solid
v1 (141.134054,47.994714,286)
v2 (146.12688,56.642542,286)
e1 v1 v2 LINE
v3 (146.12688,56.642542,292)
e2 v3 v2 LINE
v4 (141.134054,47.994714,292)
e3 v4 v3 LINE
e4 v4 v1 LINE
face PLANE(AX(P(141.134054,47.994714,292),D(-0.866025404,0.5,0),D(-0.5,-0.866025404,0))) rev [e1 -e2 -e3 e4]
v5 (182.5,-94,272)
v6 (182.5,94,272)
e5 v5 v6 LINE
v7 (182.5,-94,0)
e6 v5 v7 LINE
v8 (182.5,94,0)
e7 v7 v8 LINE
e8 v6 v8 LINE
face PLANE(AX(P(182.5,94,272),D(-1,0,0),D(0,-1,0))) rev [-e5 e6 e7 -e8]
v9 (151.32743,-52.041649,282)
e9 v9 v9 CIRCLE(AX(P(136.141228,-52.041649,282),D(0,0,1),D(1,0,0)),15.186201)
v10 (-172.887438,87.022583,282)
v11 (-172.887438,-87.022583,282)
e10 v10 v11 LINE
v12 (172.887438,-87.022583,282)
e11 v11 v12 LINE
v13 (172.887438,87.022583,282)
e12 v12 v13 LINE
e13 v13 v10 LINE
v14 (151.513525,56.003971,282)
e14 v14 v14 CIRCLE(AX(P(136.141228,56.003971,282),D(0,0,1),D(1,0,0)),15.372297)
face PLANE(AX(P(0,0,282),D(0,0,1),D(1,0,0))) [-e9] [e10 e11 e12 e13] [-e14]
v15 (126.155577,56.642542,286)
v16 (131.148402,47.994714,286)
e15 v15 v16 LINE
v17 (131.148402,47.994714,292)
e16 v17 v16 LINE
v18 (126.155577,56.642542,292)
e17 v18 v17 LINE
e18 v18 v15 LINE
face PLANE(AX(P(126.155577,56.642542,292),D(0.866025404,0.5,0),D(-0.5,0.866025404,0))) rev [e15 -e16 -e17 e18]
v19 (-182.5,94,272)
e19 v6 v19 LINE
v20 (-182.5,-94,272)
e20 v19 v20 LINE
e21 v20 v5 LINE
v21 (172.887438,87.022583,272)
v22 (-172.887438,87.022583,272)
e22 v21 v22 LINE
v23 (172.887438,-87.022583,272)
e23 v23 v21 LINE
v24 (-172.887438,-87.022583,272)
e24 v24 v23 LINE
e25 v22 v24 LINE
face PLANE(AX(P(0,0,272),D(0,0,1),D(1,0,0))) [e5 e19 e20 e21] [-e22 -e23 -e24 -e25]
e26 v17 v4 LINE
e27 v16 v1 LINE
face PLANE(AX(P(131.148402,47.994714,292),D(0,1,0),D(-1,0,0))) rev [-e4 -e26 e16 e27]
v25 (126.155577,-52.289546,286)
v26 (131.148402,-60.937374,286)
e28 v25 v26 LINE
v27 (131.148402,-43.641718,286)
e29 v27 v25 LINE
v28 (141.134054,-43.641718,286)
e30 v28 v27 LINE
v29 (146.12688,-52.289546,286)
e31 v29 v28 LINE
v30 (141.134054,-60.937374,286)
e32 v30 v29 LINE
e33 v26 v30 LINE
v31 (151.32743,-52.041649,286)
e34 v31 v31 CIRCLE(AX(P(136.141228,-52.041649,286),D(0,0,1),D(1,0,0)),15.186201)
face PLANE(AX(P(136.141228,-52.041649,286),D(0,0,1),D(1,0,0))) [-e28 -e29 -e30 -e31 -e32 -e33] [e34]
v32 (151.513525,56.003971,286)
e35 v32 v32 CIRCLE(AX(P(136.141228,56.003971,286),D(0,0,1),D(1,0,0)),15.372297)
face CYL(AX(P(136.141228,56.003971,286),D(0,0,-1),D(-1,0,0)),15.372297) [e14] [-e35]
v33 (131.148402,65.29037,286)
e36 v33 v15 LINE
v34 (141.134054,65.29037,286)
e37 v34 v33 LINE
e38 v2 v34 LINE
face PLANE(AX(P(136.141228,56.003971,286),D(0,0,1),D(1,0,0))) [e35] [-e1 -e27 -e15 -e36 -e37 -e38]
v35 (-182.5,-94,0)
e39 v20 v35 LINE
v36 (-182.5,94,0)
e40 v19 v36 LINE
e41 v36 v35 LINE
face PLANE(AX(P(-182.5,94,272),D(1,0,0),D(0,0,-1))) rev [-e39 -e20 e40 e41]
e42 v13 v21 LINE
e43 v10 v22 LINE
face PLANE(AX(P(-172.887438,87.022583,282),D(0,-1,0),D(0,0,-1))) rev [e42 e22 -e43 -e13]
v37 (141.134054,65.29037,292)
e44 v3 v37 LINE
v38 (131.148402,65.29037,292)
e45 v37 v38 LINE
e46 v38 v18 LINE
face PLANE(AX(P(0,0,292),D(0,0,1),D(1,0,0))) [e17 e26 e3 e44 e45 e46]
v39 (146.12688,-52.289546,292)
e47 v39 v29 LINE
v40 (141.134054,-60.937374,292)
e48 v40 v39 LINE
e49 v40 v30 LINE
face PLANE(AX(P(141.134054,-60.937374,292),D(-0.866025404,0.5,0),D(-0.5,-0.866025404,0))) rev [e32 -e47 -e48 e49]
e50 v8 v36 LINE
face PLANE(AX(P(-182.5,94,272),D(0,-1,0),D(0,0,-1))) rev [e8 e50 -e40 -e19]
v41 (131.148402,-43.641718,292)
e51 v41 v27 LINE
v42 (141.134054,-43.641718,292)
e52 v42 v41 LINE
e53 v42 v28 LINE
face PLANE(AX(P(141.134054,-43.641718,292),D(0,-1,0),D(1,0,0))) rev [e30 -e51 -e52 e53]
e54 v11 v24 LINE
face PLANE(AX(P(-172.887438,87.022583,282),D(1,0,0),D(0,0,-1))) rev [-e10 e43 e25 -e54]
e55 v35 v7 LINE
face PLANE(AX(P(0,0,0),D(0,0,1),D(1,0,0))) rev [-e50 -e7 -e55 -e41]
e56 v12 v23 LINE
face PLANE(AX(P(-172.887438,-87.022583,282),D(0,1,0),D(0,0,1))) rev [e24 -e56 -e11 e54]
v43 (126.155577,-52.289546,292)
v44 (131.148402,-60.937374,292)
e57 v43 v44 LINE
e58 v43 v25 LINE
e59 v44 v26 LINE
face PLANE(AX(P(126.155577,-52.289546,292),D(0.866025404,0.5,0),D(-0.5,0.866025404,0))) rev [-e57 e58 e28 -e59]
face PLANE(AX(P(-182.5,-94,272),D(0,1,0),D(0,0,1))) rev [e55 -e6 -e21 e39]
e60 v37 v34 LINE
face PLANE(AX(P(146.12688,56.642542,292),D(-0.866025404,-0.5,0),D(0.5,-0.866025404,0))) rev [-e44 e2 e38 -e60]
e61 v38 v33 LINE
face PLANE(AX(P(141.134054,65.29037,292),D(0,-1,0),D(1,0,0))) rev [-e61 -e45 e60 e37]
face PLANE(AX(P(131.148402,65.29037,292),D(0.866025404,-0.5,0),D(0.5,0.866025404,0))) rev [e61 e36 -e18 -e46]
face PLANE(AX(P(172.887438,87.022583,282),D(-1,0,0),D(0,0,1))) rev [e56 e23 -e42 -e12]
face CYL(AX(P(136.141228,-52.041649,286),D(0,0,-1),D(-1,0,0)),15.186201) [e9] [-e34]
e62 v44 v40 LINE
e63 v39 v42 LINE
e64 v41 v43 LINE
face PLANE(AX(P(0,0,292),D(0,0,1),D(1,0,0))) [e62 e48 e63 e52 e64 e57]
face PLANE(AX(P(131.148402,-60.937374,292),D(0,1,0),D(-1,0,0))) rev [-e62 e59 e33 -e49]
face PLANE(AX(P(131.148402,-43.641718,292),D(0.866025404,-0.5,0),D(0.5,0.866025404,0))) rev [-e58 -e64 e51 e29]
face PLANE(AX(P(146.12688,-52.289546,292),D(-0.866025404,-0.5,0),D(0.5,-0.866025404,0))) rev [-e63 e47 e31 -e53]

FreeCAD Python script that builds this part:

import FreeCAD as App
import Part
import Sketcher
Q = App.Units.Quantity


def add_polygon(sketch, points):
    """Adds a closed chain of lines whose ends are joined by coincident constraints."""
    first, n = sketch.GeometryCount, len(points)
    for a, b in zip(points, points[1:] + points[:1]):
        sketch.addGeometry(Part.LineSegment(App.Vector(*a, 0), App.Vector(*b, 0)), False)
    for i in range(n):
        sketch.addConstraint(Sketcher.Constraint("Coincident", first + i, 2, first + (i + 1) % n, 1))

doc = App.newDocument("Part")
body = doc.addObject("PartDesign::Body", "Body")

sketch1 = doc.addObject("Sketcher::SketchObject", "Sketch")
body.addObject(sketch1)
sketch1.AttachmentSupport = (doc.XY_Plane, [""])
sketch1.MapMode = "FlatFace"
add_polygon(sketch1, [(-182, 94), (-182, -94), (182, -94), (182, 94)])
sketch1.addConstraint(Sketcher.Constraint("Vertical", 0))
sketch1.addConstraint(Sketcher.Constraint("Horizontal", 1))
sketch1.addConstraint(Sketcher.Constraint("Vertical", 2))
sketch1.addConstraint(Sketcher.Constraint("Horizontal", 3))
sketch1.addConstraint(Sketcher.Constraint("Symmetric", 0, 2, 2, 2, -1, 1))
sketch1.addConstraint(Sketcher.Constraint("DistanceX", 1, 1, 1, 2, Q("365 mm")))
sketch1.addConstraint(Sketcher.Constraint("DistanceY", 0, 2, 0, 1, Q("188 mm")))
pad1 = doc.addObject("PartDesign::Pad", "Pad")
body.addObject(pad1)
pad1.Profile = sketch1
pad1.Length = 272

sketch2 = doc.addObject("Sketcher::SketchObject", "Sketch001")
body.addObject(sketch2)
sketch2.AttachmentSupport = (doc.XY_Plane, [""])
sketch2.MapMode = "FlatFace"
sketch2.AttachmentOffset = App.Placement(App.Vector(0, 0, 272), App.Rotation())
add_polygon(sketch2, [(-173, 87), (-173, -87), (173, -87), (173, 87)])
sketch2.addConstraint(Sketcher.Constraint("Vertical", 0))
sketch2.addConstraint(Sketcher.Constraint("Horizontal", 1))
sketch2.addConstraint(Sketcher.Constraint("Vertical", 2))
sketch2.addConstraint(Sketcher.Constraint("Horizontal", 3))
sketch2.addConstraint(Sketcher.Constraint("Symmetric", 0, 2, 2, 2, -1, 1))
sketch2.addConstraint(Sketcher.Constraint("DistanceX", 1, 1, 1, 2, Q("345.774876 mm")))
sketch2.addConstraint(Sketcher.Constraint("DistanceY", 0, 2, 0, 1, Q("174.045166 mm")))
pad2 = doc.addObject("PartDesign::Pad", "Pad001")
body.addObject(pad2)
pad2.Profile = sketch2
pad2.Length = 10

sketch3 = doc.addObject("Sketcher::SketchObject", "Sketch002")
body.addObject(sketch3)
sketch3.AttachmentSupport = (doc.XY_Plane, [""])
sketch3.MapMode = "FlatFace"
sketch3.AttachmentOffset = App.Placement(App.Vector(0, 0, 282), App.Rotation())
add_polygon(sketch3, [(146, 57), (141, 65), (131, 65), (126, 57), (131, 48), (141, 48)])
add_polygon(sketch3, [(146, -52), (141, -44), (131, -44), (126, -52), (131, -61), (141, -61)])
sketch3.addConstraint(Sketcher.Constraint("Horizontal", 1))
sketch3.addConstraint(Sketcher.Constraint("Horizontal", 4))
sketch3.addConstraint(Sketcher.Constraint("Horizontal", 7))
sketch3.addConstraint(Sketcher.Constraint("Horizontal", 10))
sketch3.addConstraint(Sketcher.Constraint("Parallel", 0, 3))
sketch3.addConstraint(Sketcher.Constraint("Parallel", 2, 5))
sketch3.addConstraint(Sketcher.Constraint("Parallel", 3, 6))
sketch3.addConstraint(Sketcher.Constraint("Parallel", 5, 8))
sketch3.addConstraint(Sketcher.Constraint("Parallel", 6, 9))
sketch3.addConstraint(Sketcher.Constraint("Parallel", 8, 11))
sketch3.addConstraint(Sketcher.Constraint("Horizontal", 2, 2, 5, 2))
sketch3.addConstraint(Sketcher.Constraint("Horizontal", 8, 2, 11, 2))
sketch3.addConstraint(Sketcher.Constraint("Vertical", 1, 2, 3, 2))
sketch3.addConstraint(Sketcher.Constraint("Vertical", 0, 2, 4, 2))
sketch3.addConstraint(Sketcher.Constraint("Vertical", 4, 2, 6, 2))
sketch3.addConstraint(Sketcher.Constraint("Vertical", 3, 2, 7, 2))
sketch3.addConstraint(Sketcher.Constraint("Vertical", 2, 2, 8, 2))
sketch3.addConstraint(Sketcher.Constraint("Vertical", 7, 2, 9, 2))
sketch3.addConstraint(Sketcher.Constraint("Angle", 0, Q("120 deg")))
sketch3.addConstraint(Sketcher.Constraint("DistanceX", 1, 2, 1, 1, Q("9.985652 mm")))
sketch3.addConstraint(Sketcher.Constraint("Distance", 0, Q("9.985652 mm")))
sketch3.addConstraint(Sketcher.Constraint("DistanceY", -1, 1, 0, 2, Q("65.29037 mm")))
sketch3.addConstraint(Sketcher.Constraint("DistanceX", -1, 1, 5, 2, Q("146.12688 mm")))
sketch3.addConstraint(Sketcher.Constraint("DistanceY", 6, 2, -1, 1, Q("43.641718 mm")))
pad3 = doc.addObject("PartDesign::Pad", "Pad002")
body.addObject(pad3)
pad3.Profile = sketch3
pad3.Length = 10

sketch4 = doc.addObject("Sketcher::SketchObject", "Sketch003")
body.addObject(sketch4)
sketch4.AttachmentSupport = (doc.XY_Plane, [""])
sketch4.MapMode = "FlatFace"
sketch4.AttachmentOffset = App.Placement(App.Vector(0, 0, 282), App.Rotation())
sketch4.addGeometry(Part.Circle(App.Vector(136, 56, 0), App.Vector(0, 0, 1), 15), False)
sketch4.addGeometry(Part.Circle(App.Vector(136, -52, 0), App.Vector(0, 0, 1), 15), False)
sketch4.addConstraint(Sketcher.Constraint("Vertical", 0, 3, 1, 3))
sketch4.addConstraint(Sketcher.Constraint("Diameter", 0, Q("30.744595 mm")))
sketch4.addConstraint(Sketcher.Constraint("Diameter", 1, Q("30.372403 mm")))
sketch4.addConstraint(Sketcher.Constraint("DistanceX", -1, 1, 0, 3, Q("136.141228 mm")))
sketch4.addConstraint(Sketcher.Constraint("DistanceY", -1, 1, 0, 3, Q("56.003971 mm")))
sketch4.addConstraint(Sketcher.Constraint("DistanceY", 1, 3, -1, 1, Q("52.041649 mm")))
pad4 = doc.addObject("PartDesign::Pad", "Pad003")
body.addObject(pad4)
pad4.Profile = sketch4
pad4.Length = 4

doc.recompute()
